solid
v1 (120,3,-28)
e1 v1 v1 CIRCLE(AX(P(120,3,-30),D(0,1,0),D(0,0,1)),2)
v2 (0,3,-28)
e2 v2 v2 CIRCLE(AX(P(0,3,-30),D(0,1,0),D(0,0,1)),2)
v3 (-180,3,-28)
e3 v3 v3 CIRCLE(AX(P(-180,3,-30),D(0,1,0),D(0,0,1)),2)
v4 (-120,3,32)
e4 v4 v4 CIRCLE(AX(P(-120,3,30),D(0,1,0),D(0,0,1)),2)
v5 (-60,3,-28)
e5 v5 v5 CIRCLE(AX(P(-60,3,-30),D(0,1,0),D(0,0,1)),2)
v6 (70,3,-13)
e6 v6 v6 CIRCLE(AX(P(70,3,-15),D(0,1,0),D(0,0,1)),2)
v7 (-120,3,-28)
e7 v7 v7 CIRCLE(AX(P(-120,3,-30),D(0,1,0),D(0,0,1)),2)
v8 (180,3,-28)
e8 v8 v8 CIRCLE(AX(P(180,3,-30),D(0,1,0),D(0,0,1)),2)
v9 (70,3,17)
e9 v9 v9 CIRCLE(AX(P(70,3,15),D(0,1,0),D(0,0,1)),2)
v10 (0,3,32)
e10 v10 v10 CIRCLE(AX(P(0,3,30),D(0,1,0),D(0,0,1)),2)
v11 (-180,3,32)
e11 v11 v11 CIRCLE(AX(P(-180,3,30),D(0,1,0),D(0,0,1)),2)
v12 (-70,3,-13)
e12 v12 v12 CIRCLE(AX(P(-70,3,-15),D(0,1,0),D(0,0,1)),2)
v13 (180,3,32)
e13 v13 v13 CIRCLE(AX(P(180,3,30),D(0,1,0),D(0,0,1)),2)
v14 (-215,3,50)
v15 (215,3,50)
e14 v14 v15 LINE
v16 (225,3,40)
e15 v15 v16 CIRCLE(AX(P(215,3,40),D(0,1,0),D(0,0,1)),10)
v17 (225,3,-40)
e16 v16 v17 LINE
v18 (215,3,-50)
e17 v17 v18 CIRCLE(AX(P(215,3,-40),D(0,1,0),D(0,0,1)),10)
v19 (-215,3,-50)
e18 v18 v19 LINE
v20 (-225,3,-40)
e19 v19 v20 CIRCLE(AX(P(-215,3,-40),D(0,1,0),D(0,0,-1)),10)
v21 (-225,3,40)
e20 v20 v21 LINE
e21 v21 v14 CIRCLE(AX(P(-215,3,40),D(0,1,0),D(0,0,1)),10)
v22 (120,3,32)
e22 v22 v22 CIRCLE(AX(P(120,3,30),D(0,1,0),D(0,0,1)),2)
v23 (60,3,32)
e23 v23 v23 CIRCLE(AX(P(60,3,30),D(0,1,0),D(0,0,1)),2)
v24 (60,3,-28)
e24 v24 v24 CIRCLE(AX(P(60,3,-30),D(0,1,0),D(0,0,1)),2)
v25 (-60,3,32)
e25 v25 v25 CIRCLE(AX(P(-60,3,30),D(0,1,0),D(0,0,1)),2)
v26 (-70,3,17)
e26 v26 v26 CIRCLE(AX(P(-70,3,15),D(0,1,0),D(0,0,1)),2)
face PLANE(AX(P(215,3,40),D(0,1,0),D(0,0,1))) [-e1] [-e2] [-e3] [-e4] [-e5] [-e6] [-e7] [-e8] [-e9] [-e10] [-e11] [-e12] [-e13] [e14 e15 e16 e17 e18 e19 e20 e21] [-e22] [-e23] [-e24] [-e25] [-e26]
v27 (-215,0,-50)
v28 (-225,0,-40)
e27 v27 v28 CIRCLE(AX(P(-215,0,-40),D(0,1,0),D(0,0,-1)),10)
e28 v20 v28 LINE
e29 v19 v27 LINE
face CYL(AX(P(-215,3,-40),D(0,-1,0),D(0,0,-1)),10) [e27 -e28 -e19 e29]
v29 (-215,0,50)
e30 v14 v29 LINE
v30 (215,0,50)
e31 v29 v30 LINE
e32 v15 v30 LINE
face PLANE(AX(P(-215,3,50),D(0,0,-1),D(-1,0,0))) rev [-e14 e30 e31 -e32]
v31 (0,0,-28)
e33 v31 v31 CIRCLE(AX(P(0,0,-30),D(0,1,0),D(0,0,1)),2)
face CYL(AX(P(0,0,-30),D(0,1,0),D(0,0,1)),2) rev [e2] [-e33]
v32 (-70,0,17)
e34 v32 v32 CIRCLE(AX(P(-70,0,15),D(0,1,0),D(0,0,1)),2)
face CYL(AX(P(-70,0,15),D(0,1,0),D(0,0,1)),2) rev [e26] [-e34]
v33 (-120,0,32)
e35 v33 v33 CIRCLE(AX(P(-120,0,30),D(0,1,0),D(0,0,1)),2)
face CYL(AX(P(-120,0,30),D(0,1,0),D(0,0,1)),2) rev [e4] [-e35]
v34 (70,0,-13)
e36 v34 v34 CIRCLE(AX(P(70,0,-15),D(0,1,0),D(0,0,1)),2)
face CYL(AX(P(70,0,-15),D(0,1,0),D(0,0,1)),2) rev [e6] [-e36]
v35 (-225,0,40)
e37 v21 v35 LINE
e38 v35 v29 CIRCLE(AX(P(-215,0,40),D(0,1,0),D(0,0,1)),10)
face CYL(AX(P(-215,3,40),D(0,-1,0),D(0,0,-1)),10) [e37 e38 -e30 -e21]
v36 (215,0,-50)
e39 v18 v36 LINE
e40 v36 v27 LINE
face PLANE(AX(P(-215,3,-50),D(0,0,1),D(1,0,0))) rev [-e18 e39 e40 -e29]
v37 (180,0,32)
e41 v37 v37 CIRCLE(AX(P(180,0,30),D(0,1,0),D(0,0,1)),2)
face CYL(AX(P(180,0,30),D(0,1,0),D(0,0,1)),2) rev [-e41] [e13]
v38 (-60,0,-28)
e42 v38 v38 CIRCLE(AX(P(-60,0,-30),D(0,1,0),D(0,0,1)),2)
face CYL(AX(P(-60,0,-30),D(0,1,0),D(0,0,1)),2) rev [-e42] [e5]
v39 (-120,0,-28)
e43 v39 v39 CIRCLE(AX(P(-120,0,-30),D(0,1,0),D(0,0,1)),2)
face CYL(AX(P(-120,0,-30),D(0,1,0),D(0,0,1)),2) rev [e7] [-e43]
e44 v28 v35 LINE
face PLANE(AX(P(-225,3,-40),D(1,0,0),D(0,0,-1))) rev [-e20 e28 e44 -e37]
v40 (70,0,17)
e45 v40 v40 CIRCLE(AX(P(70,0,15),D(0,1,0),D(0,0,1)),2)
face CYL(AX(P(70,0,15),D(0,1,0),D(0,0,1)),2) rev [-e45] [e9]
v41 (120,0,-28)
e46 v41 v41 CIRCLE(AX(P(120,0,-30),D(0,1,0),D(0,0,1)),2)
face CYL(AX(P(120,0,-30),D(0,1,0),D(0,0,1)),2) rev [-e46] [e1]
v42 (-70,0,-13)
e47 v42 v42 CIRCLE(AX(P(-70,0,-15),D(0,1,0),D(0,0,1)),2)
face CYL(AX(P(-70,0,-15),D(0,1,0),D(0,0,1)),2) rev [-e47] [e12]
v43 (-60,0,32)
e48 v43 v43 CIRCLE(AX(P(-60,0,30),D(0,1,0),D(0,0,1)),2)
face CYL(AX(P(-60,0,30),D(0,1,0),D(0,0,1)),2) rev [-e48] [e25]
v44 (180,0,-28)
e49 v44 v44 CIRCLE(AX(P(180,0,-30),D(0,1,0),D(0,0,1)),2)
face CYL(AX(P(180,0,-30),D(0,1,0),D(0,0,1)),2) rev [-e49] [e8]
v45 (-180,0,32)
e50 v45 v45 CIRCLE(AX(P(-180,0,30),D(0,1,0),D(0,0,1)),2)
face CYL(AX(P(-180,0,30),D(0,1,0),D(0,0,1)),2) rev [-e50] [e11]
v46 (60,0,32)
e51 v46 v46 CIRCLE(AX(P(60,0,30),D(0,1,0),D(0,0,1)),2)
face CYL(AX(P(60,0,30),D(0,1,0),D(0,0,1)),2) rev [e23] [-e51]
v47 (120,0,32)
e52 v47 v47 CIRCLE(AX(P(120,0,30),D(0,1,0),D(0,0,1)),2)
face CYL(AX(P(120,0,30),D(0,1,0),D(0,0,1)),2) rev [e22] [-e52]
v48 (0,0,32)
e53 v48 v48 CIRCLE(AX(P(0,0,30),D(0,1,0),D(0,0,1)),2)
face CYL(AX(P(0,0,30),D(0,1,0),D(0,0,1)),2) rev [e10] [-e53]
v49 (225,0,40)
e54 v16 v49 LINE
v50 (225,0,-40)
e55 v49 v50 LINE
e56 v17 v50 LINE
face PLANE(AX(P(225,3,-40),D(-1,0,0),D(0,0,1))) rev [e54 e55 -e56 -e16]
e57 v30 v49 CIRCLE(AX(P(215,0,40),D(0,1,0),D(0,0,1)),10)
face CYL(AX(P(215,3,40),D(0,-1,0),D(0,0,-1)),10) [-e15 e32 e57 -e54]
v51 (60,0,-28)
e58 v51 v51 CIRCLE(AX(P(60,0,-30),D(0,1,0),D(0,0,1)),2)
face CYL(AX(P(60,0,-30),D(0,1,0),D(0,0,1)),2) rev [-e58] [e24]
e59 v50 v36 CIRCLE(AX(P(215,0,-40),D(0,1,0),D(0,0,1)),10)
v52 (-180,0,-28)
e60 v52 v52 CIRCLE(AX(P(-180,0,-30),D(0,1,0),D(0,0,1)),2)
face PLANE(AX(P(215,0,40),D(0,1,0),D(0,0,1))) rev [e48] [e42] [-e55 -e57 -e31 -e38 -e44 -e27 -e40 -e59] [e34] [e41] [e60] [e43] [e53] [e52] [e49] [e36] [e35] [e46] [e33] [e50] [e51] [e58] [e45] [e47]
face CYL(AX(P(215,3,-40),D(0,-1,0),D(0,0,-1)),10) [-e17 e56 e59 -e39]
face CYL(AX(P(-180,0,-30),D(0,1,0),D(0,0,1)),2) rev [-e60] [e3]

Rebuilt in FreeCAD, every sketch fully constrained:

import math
import FreeCAD as App
import Part
import Sketcher
from FreeCAD import Vector

doc = App.newDocument("Part")
body = doc.addObject("PartDesign::Body", "Body")

# Sketch on XZ plane
sketch1 = body.newObject("Sketcher::SketchObject", "Sketch")
sketch1.AttachmentSupport = (doc.getObject("XZ_Plane"), [""])
sketch1.MapMode = "FlatFace"
sketch1.addGeometry([
    Part.LineSegment(Vector(215, -50, 0), Vector(-215, -50, 0)),  # 0
    Part.ArcOfCircle(Part.Circle(Vector(-215, -40, 0), Vector(0, 0, 1), 10), math.radians(180), math.radians(270)),  # 1
    Part.LineSegment(Vector(-225, -40, 0), Vector(-225, 40, 0)),  # 2
    Part.ArcOfCircle(Part.Circle(Vector(-215, 40, 0), Vector(0, 0, 1), 10), math.radians(90), math.radians(180)),  # 3
    Part.LineSegment(Vector(-215, 50, 0), Vector(215, 50, 0)),  # 4
    Part.ArcOfCircle(Part.Circle(Vector(215, 40, 0), Vector(0, 0, 1), 10), math.radians(0), math.radians(90)),  # 5
    Part.LineSegment(Vector(225, 40, 0), Vector(225, -40, 0)),  # 6
    Part.ArcOfCircle(Part.Circle(Vector(215, -40, 0), Vector(0, 0, 1), 10), math.radians(-90), math.radians(0)),  # 7
], False)
sketch1.addConstraint([
    Sketcher.Constraint("Tangent", 0, 2, 1, 2),
    Sketcher.Constraint("Tangent", 1, 1, 2, 1),
    Sketcher.Constraint("Tangent", 2, 2, 3, 2),
    Sketcher.Constraint("Tangent", 3, 1, 4, 1),
    Sketcher.Constraint("Tangent", 4, 2, 5, 2),
    Sketcher.Constraint("Tangent", 5, 1, 6, 1),
    Sketcher.Constraint("Tangent", 6, 2, 7, 2),
    Sketcher.Constraint("Tangent", 7, 1, 0, 1),
    Sketcher.Constraint("Horizontal", 0),
    Sketcher.Constraint("Vertical", 2),
    Sketcher.Constraint("Horizontal", 4),
    Sketcher.Constraint("Vertical", 6),
    Sketcher.Constraint("Equal", 1, 3),
    Sketcher.Constraint("Equal", 3, 5),
    Sketcher.Constraint("Equal", 5, 7),
    Sketcher.Constraint("Symmetric", 1, 3, 5, 3, -1, 1),
    Sketcher.Constraint("Radius", 1, 10.0),
    Sketcher.Constraint("DistanceX", 0, 2, 0, 1, 430.0),
    Sketcher.Constraint("DistanceY", 2, 1, 2, 2, 80.0),
])
pad1 = body.newObject("PartDesign::Pad", "Pad")
pad1.Profile = sketch1
pad1.Length = 3
pad1.Reversed = True

# Sketch on XZ plane
sketch2 = body.newObject("Sketcher::SketchObject", "Sketch001")
sketch2.AttachmentSupport = (doc.getObject("XZ_Plane"), [""])
sketch2.MapMode = "FlatFace"
sketch2.AttachmentOffset = App.Placement(Vector(0, 0, -3), App.Rotation())
sketch2.addGeometry([
    Part.Circle(Vector(-180, 30, 0), Vector(0, 0, 1), 2),  # 0
    Part.Circle(Vector(-120, 30, 0), Vector(0, 0, 1), 2),  # 1
    Part.Circle(Vector(-60, 30, 0), Vector(0, 0, 1), 2),  # 2
    Part.Circle(Vector(0, 30, 0), Vector(0, 0, 1), 2),  # 3
    Part.Circle(Vector(60, 30, 0), Vector(0, 0, 1), 2),  # 4
    Part.Circle(Vector(120, 30, 0), Vector(0, 0, 1), 2),  # 5
    Part.Circle(Vector(180, 30, 0), Vector(0, 0, 1), 2),  # 6
], False)
sketch2.addConstraint([
    Sketcher.Constraint("Equal", 0, 1),
    Sketcher.Constraint("Equal", 1, 2),
    Sketcher.Constraint("Equal", 2, 3),
    Sketcher.Constraint("Equal", 3, 4),
    Sketcher.Constraint("Equal", 4, 5),
    Sketcher.Constraint("Equal", 5, 6),
    Sketcher.Constraint("Symmetric", 2, 3, 4, 3, -2),
    Sketcher.Constraint("Symmetric", 1, 3, 5, 3, -2),
    Sketcher.Constraint("Symmetric", 0, 3, 6, 3, -2),
    Sketcher.Constraint("PointOnObject", 3, 3, -2),
    Sketcher.Constraint("Horizontal", 0, 3, 1, 3),
    Sketcher.Constraint("Horizontal", 1, 3, 2, 3),
    Sketcher.Constraint("Horizontal", 2, 3, 3, 3),
    Sketcher.Constraint("Diameter", 0, 4.0),
    Sketcher.Constraint("DistanceX", 0, 3, -1, 1, 180.0),
    Sketcher.Constraint("DistanceY", -1, 1, 0, 3, 30.0),
    Sketcher.Constraint("DistanceX", 1, 3, -1, 1, 120.0),
    Sketcher.Constraint("DistanceX", 2, 3, -1, 1, 60.0),
])
pocket1 = body.newObject("PartDesign::Pocket", "Pocket")
pocket1.Profile = sketch2
pocket1.Type = "ThroughAll"
pocket1.Reversed = True

# Sketch on XZ plane
sketch3 = body.newObject("Sketcher::SketchObject", "Sketch002")
sketch3.AttachmentSupport = (doc.getObject("XZ_Plane"), [""])
sketch3.MapMode = "FlatFace"
sketch3.AttachmentOffset = App.Placement(Vector(0, 0, -3), App.Rotation())
sketch3.addGeometry([
    Part.Circle(Vector(-180, -30, 0), Vector(0, 0, 1), 2),  # 0
    Part.Circle(Vector(-120, -30, 0), Vector(0, 0, 1), 2),  # 1
    Part.Circle(Vector(-60, -30, 0), Vector(0, 0, 1), 2),  # 2
    Part.Circle(Vector(0, -30, 0), Vector(0, 0, 1), 2),  # 3
    Part.Circle(Vector(60, -30, 0), Vector(0, 0, 1), 2),  # 4
    Part.Circle(Vector(120, -30, 0), Vector(0, 0, 1), 2),  # 5
    Part.Circle(Vector(180, -30, 0), Vector(0, 0, 1), 2),  # 6
], False)
sketch3.addConstraint([
    Sketcher.Constraint("Equal", 0, 1),
    Sketcher.Constraint("Equal", 1, 2),
    Sketcher.Constraint("Equal", 2, 3),
    Sketcher.Constraint("Equal", 3, 4),
    Sketcher.Constraint("Equal", 4, 5),
    Sketcher.Constraint("Equal", 5, 6),
    Sketcher.Constraint("Symmetric", 2, 3, 4, 3, -2),
    Sketcher.Constraint("Symmetric", 1, 3, 5, 3, -2),
    Sketcher.Constraint("Symmetric", 0, 3, 6, 3, -2),
    Sketcher.Constraint("PointOnObject", 3, 3, -2),
    Sketcher.Constraint("Horizontal", 0, 3, 1, 3),
    Sketcher.Constraint("Horizontal", 1, 3, 2, 3),
    Sketcher.Constraint("Horizontal", 2, 3, 3, 3),
    Sketcher.Constraint("Diameter", 0, 4.0),
    Sketcher.Constraint("DistanceX", 0, 3, -1, 1, 180.0),
    Sketcher.Constraint("DistanceY", 0, 3, -1, 1, 30.0),
    Sketcher.Constraint("DistanceX", 1, 3, -1, 1, 120.0),
    Sketcher.Constraint("DistanceX", 2, 3, -1, 1, 60.0),
])
pocket2 = body.newObject("PartDesign::Pocket", "Pocket001")
pocket2.Profile = sketch3
pocket2.Type = "ThroughAll"
pocket2.Reversed = True

# Sketch on XZ plane
sketch4 = body.newObject("Sketcher::SketchObject", "Sketch003")
sketch4.AttachmentSupport = (doc.getObject("XZ_Plane"), [""])
sketch4.MapMode = "FlatFace"
sketch4.AttachmentOffset = App.Placement(Vector(0, 0, -3), App.Rotation())
sketch4.addGeometry([
    Part.Circle(Vector(-70, -15, 0), Vector(0, 0, 1), 2),
    Part.Circle(Vector(70, -15, 0), Vector(0, 0, 1), 2),
    Part.Circle(Vector(-70, 15, 0), Vector(0, 0, 1), 2),
    Part.Circle(Vector(70, 15, 0), Vector(0, 0, 1), 2),
], False)
sketch4.addConstraint([
    Sketcher.Constraint("Equal", 0, 1),
    Sketcher.Constraint("Equal", 1, 2),
    Sketcher.Constraint("Equal", 2, 3),
    Sketcher.Constraint("Symmetric", 1, 3, 2, 3, -1, 1),
    Sketcher.Constraint("Symmetric", 0, 3, 3, 3, -1, 1),
    Sketcher.Constraint("Symmetric", 0, 3, 1, 3, -2),
    Sketcher.Constraint("Diameter", 0, 4.0),
    Sketcher.Constraint("DistanceX", 0, 3, -1, 1, 70.0),
    Sketcher.Constraint("DistanceY", 0, 3, -1, 1, 15.0),
])
pocket3 = body.newObject("PartDesign::Pocket", "Pocket002")
pocket3.Profile = sketch4
pocket3.Type = "ThroughAll"
pocket3.Reversed = True

doc.recompute()
